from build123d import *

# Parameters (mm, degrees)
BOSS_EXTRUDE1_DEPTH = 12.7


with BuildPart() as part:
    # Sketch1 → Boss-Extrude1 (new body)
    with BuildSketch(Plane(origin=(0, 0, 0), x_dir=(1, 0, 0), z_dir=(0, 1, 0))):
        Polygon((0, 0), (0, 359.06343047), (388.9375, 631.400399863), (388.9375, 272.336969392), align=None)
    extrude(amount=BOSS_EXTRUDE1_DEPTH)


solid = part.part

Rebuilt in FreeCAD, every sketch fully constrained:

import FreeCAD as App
import Part
import Sketcher

V = App.Vector
Q = App.Units.Quantity


def add_polygon(sketch, points):
    """Adds a closed chain of lines whose ends are joined by coincident constraints."""
    first, n = sketch.GeometryCount, len(points)
    for a, b in zip(points, points[1:] + points[:1]):
        sketch.addGeometry(Part.LineSegment(App.Vector(*a, 0), App.Vector(*b, 0)), False)
    for i in range(n):
        sketch.addConstraint(Sketcher.Constraint("Coincident", first + i, 2, first + (i + 1) % n, 1))

doc = App.newDocument("Part")
body = doc.addObject("PartDesign::Body", "Body")

sketch1 = doc.addObject("Sketcher::SketchObject", "Sketch")
body.addObject(sketch1)
sketch1.AttachmentSupport = (doc.XZ_Plane, [""])
sketch1.MapMode = "FlatFace"
add_polygon(sketch1, [(0, -359.06343), (0, 0), (388.9375, -272.336969), (388.9375, -631.4004)])
sketch1.addConstraint([
    Sketcher.Constraint("Vertical", 0),
    Sketcher.Constraint("Vertical", 2),
    Sketcher.Constraint("Coincident", 0, 2, -1, 1),
    Sketcher.Constraint("Parallel", 1, 3),
    Sketcher.Constraint("Angle", 1, Q("-35 deg")),
    Sketcher.Constraint("DistanceX", -1, 1, 1, 2, Q("15.3125 in")),
    Sketcher.Constraint("DistanceY", 0, 1, 0, 2, 359.06343),
])
pad1 = doc.addObject("PartDesign::Pad", "Pad")
body.addObject(pad1)
pad1.Profile = sketch1
pad1.Length = Q("0.5 in")
pad1.Reversed = True

doc.recompute()
